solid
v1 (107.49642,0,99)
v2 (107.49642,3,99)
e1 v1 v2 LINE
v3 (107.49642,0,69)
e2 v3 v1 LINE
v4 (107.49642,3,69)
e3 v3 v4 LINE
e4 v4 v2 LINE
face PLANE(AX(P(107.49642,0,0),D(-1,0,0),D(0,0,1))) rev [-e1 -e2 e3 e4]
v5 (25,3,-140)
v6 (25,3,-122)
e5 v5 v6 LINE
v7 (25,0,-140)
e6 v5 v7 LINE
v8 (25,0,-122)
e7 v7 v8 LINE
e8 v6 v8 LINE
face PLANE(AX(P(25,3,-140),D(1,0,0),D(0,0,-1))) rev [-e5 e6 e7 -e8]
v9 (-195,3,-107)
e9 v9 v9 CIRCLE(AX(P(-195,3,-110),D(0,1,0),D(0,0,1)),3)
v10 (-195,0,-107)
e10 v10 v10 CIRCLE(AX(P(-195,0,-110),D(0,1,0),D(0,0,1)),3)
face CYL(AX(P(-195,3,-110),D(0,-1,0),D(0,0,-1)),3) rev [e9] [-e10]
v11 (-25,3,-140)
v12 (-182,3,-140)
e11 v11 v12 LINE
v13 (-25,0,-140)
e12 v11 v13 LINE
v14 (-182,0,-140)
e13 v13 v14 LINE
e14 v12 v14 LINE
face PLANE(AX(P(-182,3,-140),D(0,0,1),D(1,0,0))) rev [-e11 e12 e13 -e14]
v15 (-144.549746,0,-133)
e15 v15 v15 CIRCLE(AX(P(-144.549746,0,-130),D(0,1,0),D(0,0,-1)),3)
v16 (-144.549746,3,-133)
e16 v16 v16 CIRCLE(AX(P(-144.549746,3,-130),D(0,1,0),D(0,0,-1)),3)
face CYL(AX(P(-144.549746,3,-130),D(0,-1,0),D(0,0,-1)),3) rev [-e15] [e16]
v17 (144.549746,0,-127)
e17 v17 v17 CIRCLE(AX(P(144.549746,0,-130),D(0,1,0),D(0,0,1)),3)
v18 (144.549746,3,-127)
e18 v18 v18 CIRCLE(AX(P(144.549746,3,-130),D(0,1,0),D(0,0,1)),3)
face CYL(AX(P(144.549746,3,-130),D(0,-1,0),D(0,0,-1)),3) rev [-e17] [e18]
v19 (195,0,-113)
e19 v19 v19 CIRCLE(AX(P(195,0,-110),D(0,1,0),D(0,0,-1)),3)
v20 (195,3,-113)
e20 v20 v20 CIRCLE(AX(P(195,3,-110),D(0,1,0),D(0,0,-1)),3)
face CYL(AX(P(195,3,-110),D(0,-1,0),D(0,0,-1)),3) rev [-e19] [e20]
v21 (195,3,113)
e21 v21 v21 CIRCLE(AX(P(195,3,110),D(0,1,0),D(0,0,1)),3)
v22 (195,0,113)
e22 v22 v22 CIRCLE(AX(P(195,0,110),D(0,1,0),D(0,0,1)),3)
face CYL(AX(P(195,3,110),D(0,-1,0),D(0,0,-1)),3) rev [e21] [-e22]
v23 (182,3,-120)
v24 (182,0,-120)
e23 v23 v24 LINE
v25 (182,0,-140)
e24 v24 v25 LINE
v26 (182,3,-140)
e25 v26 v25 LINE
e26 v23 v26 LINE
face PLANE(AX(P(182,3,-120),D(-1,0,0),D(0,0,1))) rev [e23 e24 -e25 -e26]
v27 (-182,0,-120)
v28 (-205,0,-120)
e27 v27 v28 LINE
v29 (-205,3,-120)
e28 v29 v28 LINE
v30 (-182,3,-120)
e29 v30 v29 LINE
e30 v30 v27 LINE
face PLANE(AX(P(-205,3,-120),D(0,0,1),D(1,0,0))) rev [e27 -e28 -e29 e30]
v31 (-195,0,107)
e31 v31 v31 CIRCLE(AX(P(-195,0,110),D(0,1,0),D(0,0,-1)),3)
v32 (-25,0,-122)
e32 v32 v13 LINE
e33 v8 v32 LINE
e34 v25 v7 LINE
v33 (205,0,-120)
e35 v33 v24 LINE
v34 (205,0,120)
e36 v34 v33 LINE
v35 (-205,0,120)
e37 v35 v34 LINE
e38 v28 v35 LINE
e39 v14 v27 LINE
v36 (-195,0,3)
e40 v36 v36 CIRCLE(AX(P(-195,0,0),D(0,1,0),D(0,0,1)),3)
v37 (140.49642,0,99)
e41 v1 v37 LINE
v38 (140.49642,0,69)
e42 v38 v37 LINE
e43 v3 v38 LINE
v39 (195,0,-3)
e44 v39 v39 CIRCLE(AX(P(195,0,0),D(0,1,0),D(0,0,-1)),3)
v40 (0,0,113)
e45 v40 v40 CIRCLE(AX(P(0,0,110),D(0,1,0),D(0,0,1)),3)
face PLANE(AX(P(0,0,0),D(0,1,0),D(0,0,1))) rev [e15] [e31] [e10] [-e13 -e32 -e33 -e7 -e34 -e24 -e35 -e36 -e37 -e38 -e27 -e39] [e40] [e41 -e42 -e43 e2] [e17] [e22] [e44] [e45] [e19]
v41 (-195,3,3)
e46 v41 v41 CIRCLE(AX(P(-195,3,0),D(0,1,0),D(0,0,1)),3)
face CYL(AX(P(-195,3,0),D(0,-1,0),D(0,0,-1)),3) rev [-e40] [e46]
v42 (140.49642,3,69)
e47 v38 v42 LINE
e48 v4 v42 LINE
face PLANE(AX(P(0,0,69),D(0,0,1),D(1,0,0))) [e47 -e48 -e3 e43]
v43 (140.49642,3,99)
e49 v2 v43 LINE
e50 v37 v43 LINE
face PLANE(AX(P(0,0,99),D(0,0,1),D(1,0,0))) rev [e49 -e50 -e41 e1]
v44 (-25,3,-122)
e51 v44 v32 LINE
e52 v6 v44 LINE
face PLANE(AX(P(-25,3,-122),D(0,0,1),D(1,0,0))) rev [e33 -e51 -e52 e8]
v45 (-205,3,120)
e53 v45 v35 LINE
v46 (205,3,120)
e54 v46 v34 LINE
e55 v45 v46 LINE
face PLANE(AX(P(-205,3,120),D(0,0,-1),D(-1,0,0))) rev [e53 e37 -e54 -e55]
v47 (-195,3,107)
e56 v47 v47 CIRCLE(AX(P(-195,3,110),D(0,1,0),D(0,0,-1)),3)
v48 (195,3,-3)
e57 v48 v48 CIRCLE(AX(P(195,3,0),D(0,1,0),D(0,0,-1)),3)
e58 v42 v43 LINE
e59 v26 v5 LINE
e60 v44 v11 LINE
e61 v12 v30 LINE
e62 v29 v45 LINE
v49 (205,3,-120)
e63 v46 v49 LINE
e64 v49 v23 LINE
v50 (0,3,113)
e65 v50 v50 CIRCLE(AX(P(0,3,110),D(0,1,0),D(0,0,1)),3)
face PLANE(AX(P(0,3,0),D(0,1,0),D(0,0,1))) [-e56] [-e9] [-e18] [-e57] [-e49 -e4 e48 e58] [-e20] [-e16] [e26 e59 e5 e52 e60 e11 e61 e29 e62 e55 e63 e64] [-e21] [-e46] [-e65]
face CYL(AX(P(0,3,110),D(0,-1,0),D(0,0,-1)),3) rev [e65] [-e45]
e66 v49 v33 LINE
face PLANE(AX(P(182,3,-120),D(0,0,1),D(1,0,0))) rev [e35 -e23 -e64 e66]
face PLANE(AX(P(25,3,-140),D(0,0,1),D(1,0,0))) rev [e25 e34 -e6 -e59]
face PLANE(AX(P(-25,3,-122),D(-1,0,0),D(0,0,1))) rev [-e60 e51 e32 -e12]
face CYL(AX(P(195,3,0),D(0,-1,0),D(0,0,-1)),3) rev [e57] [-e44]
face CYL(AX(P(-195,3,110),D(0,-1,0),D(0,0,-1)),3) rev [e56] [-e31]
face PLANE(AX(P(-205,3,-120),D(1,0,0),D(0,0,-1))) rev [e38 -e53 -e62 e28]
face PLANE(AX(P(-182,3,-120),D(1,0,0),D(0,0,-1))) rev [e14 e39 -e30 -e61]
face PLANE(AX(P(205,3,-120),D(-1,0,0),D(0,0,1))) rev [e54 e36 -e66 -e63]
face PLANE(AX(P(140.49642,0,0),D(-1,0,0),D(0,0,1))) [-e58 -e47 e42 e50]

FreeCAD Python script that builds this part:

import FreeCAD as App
import Part
import Sketcher

V = App.Vector
Q = App.Units.Quantity


def add_polygon(sketch, points):
    """Adds a closed chain of lines whose ends are joined by coincident constraints."""
    first, n = sketch.GeometryCount, len(points)
    for a, b in zip(points, points[1:] + points[:1]):
        sketch.addGeometry(Part.LineSegment(App.Vector(*a, 0), App.Vector(*b, 0)), False)
    for i in range(n):
        sketch.addConstraint(Sketcher.Constraint("Coincident", first + i, 2, first + (i + 1) % n, 1))

doc = App.newDocument("Part")
body = doc.addObject("PartDesign::Body", "Body")

# Sketch on XZ plane
sketch1 = body.newObject("Sketcher::SketchObject", "Sketch")
sketch1.AttachmentSupport = (doc.getObject("XZ_Plane"), [""])
sketch1.MapMode = "FlatFace"
add_polygon(sketch1, [(205, -120), (182, -120), (182, -140), (25, -140), (25, -122), (-25, -122), (-25, -140), (-182, -140), (-182, -120), (-205, -120), (-205, 120), (205, 120)])  # lines 0-11
sketch1.addGeometry(Part.Circle(V(195, 110, 0), V(0, 0, 1), 3), False)  # 12
sketch1.addGeometry(Part.Circle(V(195, 0, 0), V(0, 0, 1), 3), False)  # 13
sketch1.addGeometry(Part.Circle(V(0, 110, 0), V(0, 0, 1), 3), False)  # 14
sketch1.addGeometry(Part.Circle(V(-195, 110, 0), V(0, 0, 1), 3), False)  # 15
sketch1.addGeometry(Part.Circle(V(-195, 0, 0), V(0, 0, 1), 3), False)  # 16
sketch1.addGeometry(Part.Circle(V(195, -110, 0), V(0, 0, 1), 3), False)  # 17
sketch1.addGeometry(Part.Circle(V(144.5, -130, 0), V(0, 0, 1), 3), False)  # 18
sketch1.addGeometry(Part.Circle(V(-144.5, -130, 0), V(0, 0, 1), 3), False)  # 19
sketch1.addGeometry(Part.Circle(V(-195, -110, 0), V(0, 0, 1), 3), False)  # 20
sketch1.addConstraint(Sketcher.Constraint("Horizontal", 0))
sketch1.addConstraint(Sketcher.Constraint("Vertical", 1))
sketch1.addConstraint(Sketcher.Constraint("Horizontal", 2))
sketch1.addConstraint(Sketcher.Constraint("Vertical", 3))
sketch1.addConstraint(Sketcher.Constraint("Horizontal", 4))
sketch1.addConstraint(Sketcher.Constraint("Vertical", 5))
sketch1.addConstraint(Sketcher.Constraint("Horizontal", 6))
sketch1.addConstraint(Sketcher.Constraint("Vertical", 7))
sketch1.addConstraint(Sketcher.Constraint("Horizontal", 8))
sketch1.addConstraint(Sketcher.Constraint("Vertical", 9))
sketch1.addConstraint(Sketcher.Constraint("Horizontal", 10))
sketch1.addConstraint(Sketcher.Constraint("Vertical", 11))
sketch1.addConstraint(Sketcher.Constraint("Equal", 12, 13))
sketch1.addConstraint(Sketcher.Constraint("Equal", 13, 14))
sketch1.addConstraint(Sketcher.Constraint("Equal", 14, 15))
sketch1.addConstraint(Sketcher.Constraint("Equal", 15, 16))
sketch1.addConstraint(Sketcher.Constraint("Equal", 16, 17))
sketch1.addConstraint(Sketcher.Constraint("Equal", 17, 18))
sketch1.addConstraint(Sketcher.Constraint("Equal", 18, 19))
sketch1.addConstraint(Sketcher.Constraint("Equal", 19, 20))
sketch1.addConstraint(Sketcher.Constraint("Symmetric", 13, 3, 16, 3, -1, 1))
sketch1.addConstraint(Sketcher.Constraint("Symmetric", 15, 3, 17, 3, -1, 1))
sketch1.addConstraint(Sketcher.Constraint("Symmetric", 12, 3, 20, 3, -1, 1))
sketch1.addConstraint(Sketcher.Constraint("Symmetric", 8, 2, 10, 2, -1, 1))
sketch1.addConstraint(Sketcher.Constraint("Symmetric", 12, 3, 15, 3, -2))
sketch1.addConstraint(Sketcher.Constraint("Symmetric", 18, 3, 19, 3, -2))
sketch1.addConstraint(Sketcher.Constraint("Symmetric", 2, 2, 5, 2, -2))
sketch1.addConstraint(Sketcher.Constraint("Symmetric", 0, 2, 7, 2, -2))
sketch1.addConstraint(Sketcher.Constraint("PointOnObject", 13, 3, -1))
sketch1.addConstraint(Sketcher.Constraint("PointOnObject", 14, 3, -2))
sketch1.addConstraint(Sketcher.Constraint("Horizontal", 12, 3, 14, 3))
sketch1.addConstraint(Sketcher.Constraint("Vertical", 12, 3, 13, 3))
sketch1.addConstraint(Sketcher.Constraint("Diameter", 12, Q("6 mm")))
sketch1.addConstraint(Sketcher.Constraint("DistanceX", 0, 2, 0, 1, Q("23 mm")))
sketch1.addConstraint(Sketcher.Constraint("DistanceX", 2, 2, 2, 1, Q("157 mm")))
sketch1.addConstraint(Sketcher.Constraint("DistanceX", 4, 2, 4, 1, Q("50 mm")))
sketch1.addConstraint(Sketcher.Constraint("DistanceY", 1, 2, 1, 1, Q("20 mm")))
sketch1.addConstraint(Sketcher.Constraint("DistanceY", 3, 1, 3, 2, Q("18 mm")))
sketch1.addConstraint(Sketcher.Constraint("DistanceY", 9, 1, 9, 2, Q("240 mm")))
sketch1.addConstraint(Sketcher.Constraint("DistanceX", -1, 1, 12, 3, Q("195 mm")))
sketch1.addConstraint(Sketcher.Constraint("DistanceY", -1, 1, 12, 3, Q("110 mm")))
sketch1.addConstraint(Sketcher.Constraint("DistanceY", 18, 3, -1, 1, Q("130 mm")))
sketch1.addConstraint(Sketcher.Constraint("DistanceX", -1, 1, 18, 3, Q("144.549746 mm")))
pad1 = body.newObject("PartDesign::Pad", "Pad")
pad1.Profile = sketch1
pad1.Length = 3
pad1.Reversed = True

# Sketch on XZ plane
sketch2 = body.newObject("Sketcher::SketchObject", "Sketch001")
sketch2.AttachmentSupport = (doc.getObject("XZ_Plane"), [""])
sketch2.MapMode = "FlatFace"
sketch2.AttachmentOffset = App.Placement(V(0, 0, -3), App.Rotation())
add_polygon(sketch2, [(107, 69), (107, 99), (140, 99), (140, 69)])  # lines 0-3
sketch2.addConstraint(Sketcher.Constraint("Vertical", 0))
sketch2.addConstraint(Sketcher.Constraint("Horizontal", 1))
sketch2.addConstraint(Sketcher.Constraint("Vertical", 2))
sketch2.addConstraint(Sketcher.Constraint("Horizontal", 3))
sketch2.addConstraint(Sketcher.Constraint("DistanceX", 1, 1, 1, 2, Q("33 mm")))
sketch2.addConstraint(Sketcher.Constraint("DistanceY", 0, 1, 0, 2, Q("30 mm")))
sketch2.addConstraint(Sketcher.Constraint("DistanceY", -1, 1, 0, 2, Q("99 mm")))
sketch2.addConstraint(Sketcher.Constraint("DistanceX", -1, 1, 0, 2, Q("107.49642 mm")))
pocket1 = body.newObject("PartDesign::Pocket", "Pocket")
pocket1.Profile = sketch2
pocket1.Length = 3
pocket1.Reversed = True

doc.recompute()
